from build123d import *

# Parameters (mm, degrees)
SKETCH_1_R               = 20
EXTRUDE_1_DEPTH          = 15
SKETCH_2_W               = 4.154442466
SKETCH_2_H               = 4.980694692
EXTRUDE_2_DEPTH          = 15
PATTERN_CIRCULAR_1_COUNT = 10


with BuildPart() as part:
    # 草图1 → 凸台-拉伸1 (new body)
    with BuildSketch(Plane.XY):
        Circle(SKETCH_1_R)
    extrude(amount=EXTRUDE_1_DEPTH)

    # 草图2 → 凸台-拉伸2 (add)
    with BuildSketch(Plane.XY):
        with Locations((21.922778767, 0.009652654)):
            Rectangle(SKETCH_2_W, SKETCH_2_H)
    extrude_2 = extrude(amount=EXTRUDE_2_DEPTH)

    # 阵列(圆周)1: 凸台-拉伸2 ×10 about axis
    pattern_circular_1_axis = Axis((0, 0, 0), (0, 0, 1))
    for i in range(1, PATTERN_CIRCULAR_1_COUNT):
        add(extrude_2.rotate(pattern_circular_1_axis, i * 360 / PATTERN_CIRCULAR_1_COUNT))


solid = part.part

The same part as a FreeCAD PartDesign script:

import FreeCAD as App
import Part
import Sketcher
Q = App.Units.Quantity


def add_polygon(sketch, points):
    """Adds a closed chain of lines whose ends are joined by coincident constraints."""
    first, n = sketch.GeometryCount, len(points)
    for a, b in zip(points, points[1:] + points[:1]):
        sketch.addGeometry(Part.LineSegment(App.Vector(*a, 0), App.Vector(*b, 0)), False)
    for i in range(n):
        sketch.addConstraint(Sketcher.Constraint("Coincident", first + i, 2, first + (i + 1) % n, 1))

doc = App.newDocument("Part")
body = doc.addObject("PartDesign::Body", "Body")

sketch1 = body.newObject("Sketcher::SketchObject", "Sketch")
sketch1.AttachmentSupport = (doc.getObject("XY_Plane"), [""])
sketch1.MapMode = "FlatFace"
sketch1.addGeometry(Part.Circle(App.Vector(0, 0, 0), App.Vector(0, 0, 1), 20), False)
sketch1.addConstraint([
    Sketcher.Constraint("Coincident", 0, 3, -1, 1),
    Sketcher.Constraint("Diameter", 0, Q("40 mm")),
])
pad1 = body.newObject("PartDesign::Pad", "Pad")
pad1.Profile = sketch1
pad1.Length = 15

sketch2 = body.newObject("Sketcher::SketchObject", "Sketch001")
sketch2.AttachmentSupport = (doc.getObject("XY_Plane"), [""])
sketch2.MapMode = "FlatFace"
add_polygon(sketch2, [(19.8, 2.5), (19.8, -2.5), (24, -2.5), (24, 2.5)])
sketch2.addConstraint([
    Sketcher.Constraint("Vertical", 0),
    Sketcher.Constraint("Horizontal", 1),
    Sketcher.Constraint("Vertical", 2),
    Sketcher.Constraint("Horizontal", 3),
    Sketcher.Constraint("DistanceX", -1, 1, 1, 2, Q("24 mm")),
    Sketcher.Constraint("DistanceY", -1, 1, 2, 2, Q("2.5 mm")),
    Sketcher.Constraint("DistanceX", 1, 1, 1, 2, Q("4.154442 mm")),
    Sketcher.Constraint("DistanceY", 0, 2, 0, 1, Q("4.980695 mm")),
])
pad2 = body.newObject("PartDesign::Pad", "Pad001")
pad2.Profile = sketch2
pad2.Length = 15
doc.recompute()

polarpattern = body.newObject("PartDesign::PolarPattern", "PolarPattern")
polarpattern.Originals = [pad2]
polarpattern.Axis = (doc.getObject("Z_Axis"), [""])
polarpattern.Angle = 360
polarpattern.Occurrences = 10
body.Tip = polarpattern

doc.recompute()
